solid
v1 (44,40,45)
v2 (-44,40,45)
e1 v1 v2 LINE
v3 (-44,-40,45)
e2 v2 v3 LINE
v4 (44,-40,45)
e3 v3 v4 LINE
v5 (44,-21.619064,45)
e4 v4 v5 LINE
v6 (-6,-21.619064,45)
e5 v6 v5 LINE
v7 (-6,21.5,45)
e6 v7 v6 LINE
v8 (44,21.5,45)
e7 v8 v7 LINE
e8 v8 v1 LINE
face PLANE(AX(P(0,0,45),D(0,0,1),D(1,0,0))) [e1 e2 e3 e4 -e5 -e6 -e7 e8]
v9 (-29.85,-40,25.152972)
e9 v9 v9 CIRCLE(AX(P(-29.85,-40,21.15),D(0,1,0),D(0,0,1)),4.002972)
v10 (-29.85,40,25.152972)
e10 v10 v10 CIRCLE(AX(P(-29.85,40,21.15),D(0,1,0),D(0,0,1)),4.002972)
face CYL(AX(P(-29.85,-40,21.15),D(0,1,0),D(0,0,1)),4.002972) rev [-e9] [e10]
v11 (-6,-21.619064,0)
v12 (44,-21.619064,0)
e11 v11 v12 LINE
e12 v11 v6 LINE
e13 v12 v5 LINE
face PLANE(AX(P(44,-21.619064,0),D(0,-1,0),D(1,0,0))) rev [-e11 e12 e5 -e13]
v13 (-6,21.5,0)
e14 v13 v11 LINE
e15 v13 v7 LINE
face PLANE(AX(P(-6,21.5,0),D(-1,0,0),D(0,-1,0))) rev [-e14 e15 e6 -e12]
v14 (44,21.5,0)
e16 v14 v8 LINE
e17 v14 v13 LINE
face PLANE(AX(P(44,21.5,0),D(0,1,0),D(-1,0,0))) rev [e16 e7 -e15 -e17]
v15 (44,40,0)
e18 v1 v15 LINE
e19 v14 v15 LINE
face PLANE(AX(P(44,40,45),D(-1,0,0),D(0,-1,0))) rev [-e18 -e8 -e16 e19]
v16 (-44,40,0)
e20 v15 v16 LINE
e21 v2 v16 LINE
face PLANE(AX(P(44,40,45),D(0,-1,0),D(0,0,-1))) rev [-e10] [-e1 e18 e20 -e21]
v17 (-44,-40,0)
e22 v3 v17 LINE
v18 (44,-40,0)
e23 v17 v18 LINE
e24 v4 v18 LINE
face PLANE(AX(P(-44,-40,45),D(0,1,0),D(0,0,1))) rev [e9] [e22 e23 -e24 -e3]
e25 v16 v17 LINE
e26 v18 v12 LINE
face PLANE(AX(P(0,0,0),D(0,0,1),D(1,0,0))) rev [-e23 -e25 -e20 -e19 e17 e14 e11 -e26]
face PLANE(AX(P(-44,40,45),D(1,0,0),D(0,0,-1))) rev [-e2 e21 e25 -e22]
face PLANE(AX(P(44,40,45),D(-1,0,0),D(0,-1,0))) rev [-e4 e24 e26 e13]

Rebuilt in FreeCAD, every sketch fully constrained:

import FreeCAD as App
import Part
import Sketcher

V = App.Vector
Q = App.Units.Quantity

doc = App.newDocument("Part")
body = doc.addObject("PartDesign::Body", "Body")

# Sketch on XY plane
sketch1 = body.newObject("Sketcher::SketchObject", "Sketch")
sketch1.AttachmentSupport = (doc.getObject("XY_Plane"), [""])
sketch1.MapMode = "FlatFace"
sketch1.addGeometry([
    Part.LineSegment(V(-44, 40, 0), V(-44, -40, 0)),
    Part.LineSegment(V(-44, -40, 0), V(44, -40, 0)),
    Part.LineSegment(V(44, -40, 0), V(44, 40, 0)),
    Part.LineSegment(V(44, 40, 0), V(-44, 40, 0)),
], False)
sketch1.addConstraint([
    Sketcher.Constraint("Coincident", 0, 2, 1, 1),
    Sketcher.Constraint("Coincident", 1, 2, 2, 1),
    Sketcher.Constraint("Coincident", 2, 2, 3, 1),
    Sketcher.Constraint("Coincident", 3, 2, 0, 1),
    Sketcher.Constraint("Vertical", 0),
    Sketcher.Constraint("Horizontal", 1),
    Sketcher.Constraint("Vertical", 2),
    Sketcher.Constraint("Horizontal", 3),
    Sketcher.Constraint("Symmetric", 0, 2, 2, 2, -1, 1),
    Sketcher.Constraint("DistanceX", 1, 1, 1, 2, Q("88 mm")),
    Sketcher.Constraint("DistanceY", 0, 2, 0, 1, Q("80 mm")),
])
pad1 = body.newObject("PartDesign::Pad", "Pad")
pad1.Profile = sketch1
pad1.Length = 45

# Sketch on XY plane
sketch2 = body.newObject("Sketcher::SketchObject", "Sketch001")
sketch2.AttachmentSupport = (doc.getObject("XY_Plane"), [""])
sketch2.MapMode = "FlatFace"
sketch2.AttachmentOffset = App.Placement(V(0, 0, 45), App.Rotation())
sketch2.addGeometry([
    Part.LineSegment(V(-6, 21.5, 0), V(-6, -21.619064, 0)),
    Part.LineSegment(V(-6, -21.619064, 0), V(44, -21.619064, 0)),
    Part.LineSegment(V(44, -21.619064, 0), V(44, 21.5, 0)),
    Part.LineSegment(V(44, 21.5, 0), V(-6, 21.5, 0)),
], False)
sketch2.addConstraint([
    Sketcher.Constraint("Coincident", 0, 2, 1, 1),
    Sketcher.Constraint("Coincident", 1, 2, 2, 1),
    Sketcher.Constraint("Coincident", 2, 2, 3, 1),
    Sketcher.Constraint("Coincident", 3, 2, 0, 1),
    Sketcher.Constraint("Vertical", 0),
    Sketcher.Constraint("Horizontal", 1),
    Sketcher.Constraint("Vertical", 2),
    Sketcher.Constraint("Horizontal", 3),
    Sketcher.Constraint("DistanceX", 1, 1, 1, 2, Q("50 mm")),
    Sketcher.Constraint("DistanceX", 0, 2, -1, 1, Q("6 mm")),
    Sketcher.Constraint("DistanceY", -1, 1, 2, 2, Q("21.5 mm")),
    Sketcher.Constraint("DistanceY", 0, 2, 0, 1, Q("43.119064 mm")),
])
pocket1 = body.newObject("PartDesign::Pocket", "Pocket")
pocket1.Profile = sketch2
pocket1.Type = "ThroughAll"

# Sketch on XZ plane
sketch3 = body.newObject("Sketcher::SketchObject", "Sketch002")
sketch3.AttachmentSupport = (doc.getObject("XZ_Plane"), [""])
sketch3.MapMode = "FlatFace"
sketch3.AttachmentOffset = App.Placement(V(0, 0, -40), App.Rotation())
sketch3.addGeometry(Part.Circle(V(-29.85, 21.15, 0), V(0, 0, 1), 4.002972), False)
sketch3.addConstraint([
    Sketcher.Constraint("DistanceX", 0, 3, -1, 1, Q("29.85 mm")),
    Sketcher.Constraint("DistanceY", -1, 1, 0, 3, Q("21.15 mm")),
    Sketcher.Constraint("Diameter", 0, Q("8.005943 mm")),
])
pocket2 = body.newObject("PartDesign::Pocket", "Pocket001")
pocket2.Profile = sketch3
pocket2.Type = "ThroughAll"
pocket2.Reversed = True

doc.recompute()
